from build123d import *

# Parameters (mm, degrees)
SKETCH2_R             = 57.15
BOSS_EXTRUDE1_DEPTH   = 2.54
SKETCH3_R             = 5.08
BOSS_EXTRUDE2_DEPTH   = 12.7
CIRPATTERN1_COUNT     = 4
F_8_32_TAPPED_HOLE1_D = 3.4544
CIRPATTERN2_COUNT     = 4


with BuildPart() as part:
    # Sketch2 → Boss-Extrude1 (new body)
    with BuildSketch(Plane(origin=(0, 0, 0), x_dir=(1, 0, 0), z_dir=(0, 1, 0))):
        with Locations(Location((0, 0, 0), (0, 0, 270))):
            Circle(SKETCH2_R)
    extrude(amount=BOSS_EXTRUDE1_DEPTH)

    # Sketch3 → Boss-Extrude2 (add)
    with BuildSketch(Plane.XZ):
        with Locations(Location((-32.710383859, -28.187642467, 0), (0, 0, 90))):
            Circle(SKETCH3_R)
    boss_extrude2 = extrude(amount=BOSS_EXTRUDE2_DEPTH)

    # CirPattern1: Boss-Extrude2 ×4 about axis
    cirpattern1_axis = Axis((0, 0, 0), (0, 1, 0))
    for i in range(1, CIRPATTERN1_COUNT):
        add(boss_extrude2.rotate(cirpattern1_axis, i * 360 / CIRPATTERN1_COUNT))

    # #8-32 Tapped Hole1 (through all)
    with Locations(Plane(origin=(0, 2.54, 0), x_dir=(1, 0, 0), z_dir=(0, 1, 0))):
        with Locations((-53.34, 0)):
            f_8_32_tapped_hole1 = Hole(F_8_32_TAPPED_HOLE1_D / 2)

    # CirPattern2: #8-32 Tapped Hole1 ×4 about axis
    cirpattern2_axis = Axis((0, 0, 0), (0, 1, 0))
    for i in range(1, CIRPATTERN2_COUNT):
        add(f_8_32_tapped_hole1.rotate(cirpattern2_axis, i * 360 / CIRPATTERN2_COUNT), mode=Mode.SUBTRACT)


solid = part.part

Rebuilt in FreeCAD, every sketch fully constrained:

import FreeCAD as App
import Part
import Sketcher
from FreeCAD import Vector
Q = App.Units.Quantity

doc = App.newDocument("Part")
params = doc.addObject("Spreadsheet::Sheet", "Params")
for row, (alias, value) in enumerate([
    ("sketch1_diameter", "4.5 in"),
    ("pad1_length", "0.1 in"),
    ("sketch2_diameter", "0.4 in"),
    ("pad2_length", "0.5 in"),
    ("sketch3_diameter", "0.136 in"),
    ("hole_diameter", "0.136 in"),
], start=1):
    params.set(f"A{row}", alias)
    params.set(f"B{row}", "=" + value)
    params.setAlias(f"B{row}", alias)

body = doc.addObject("PartDesign::Body", "Body")

sketch1 = body.newObject("Sketcher::SketchObject", "Sketch")
sketch1.AttachmentSupport = (doc.getObject("XZ_Plane"), [""])
sketch1.MapMode = "FlatFace"
sketch1.addGeometry(Part.Circle(Vector(0, 0, 0), Vector(0, 0, 1), 57), False)
sketch1.addConstraint([
    Sketcher.Constraint("Coincident", 0, 3, -1, 1),
    Sketcher.Constraint("Diameter", 0, Q("4.5 in")),
])
sketch1.setExpression("Constraints[1]", "Params.sketch1_diameter")
pad1 = body.newObject("PartDesign::Pad", "Pad")
pad1.Profile = sketch1
pad1.setExpression("Length", "Params.pad1_length")
pad1.Reversed = True

sketch2 = body.newObject("Sketcher::SketchObject", "Sketch001")
sketch2.AttachmentSupport = (doc.getObject("XZ_Plane"), [""])
sketch2.MapMode = "FlatFace"
sketch2.addGeometry(Part.Circle(Vector(-33, -28, 0), Vector(0, 0, 1), 5), False)
sketch2.addConstraint([
    Sketcher.Constraint("Diameter", 0, Q("0.4 in")),
    Sketcher.Constraint("DistanceX", 0, 3, -1, 1, Q("32.710384 mm")),
    Sketcher.Constraint("DistanceY", 0, 3, -1, 1, Q("28.187642 mm")),
])
sketch2.setExpression("Constraints[0]", "Params.sketch2_diameter")
pad2 = body.newObject("PartDesign::Pad", "Pad001")
pad2.Profile = sketch2
pad2.setExpression("Length", "Params.pad2_length")
doc.recompute()

polarpattern = body.newObject("PartDesign::PolarPattern", "PolarPattern")
polarpattern.Originals = [pad2]
polarpattern.Axis = (doc.getObject("Y_Axis"), [""])
polarpattern.Angle = 360
polarpattern.Occurrences = 4
body.Tip = polarpattern

sketch3 = body.newObject("Sketcher::SketchObject", "Sketch002")
sketch3.AttachmentSupport = (doc.getObject("XZ_Plane"), [""])
sketch3.MapMode = "FlatFace"
sketch3.AttachmentOffset = App.Placement(Vector(0, 0, -0.1 * 25.4), App.Rotation())
sketch3.addGeometry(Part.Circle(Vector(-53.3, 0, 0), Vector(0, 0, 1), 1.7), False)
sketch3.addConstraint([
    Sketcher.Constraint("PointOnObject", 0, 3, -1),
    Sketcher.Constraint("Diameter", 0, Q("0.136 in")),
    Sketcher.Constraint("DistanceX", 0, 3, -1, 1, Q("2.1 in")),
])
sketch3.setExpression("Constraints[1]", "Params.sketch3_diameter")
doc.recompute()
hole = body.newObject("PartDesign::Hole", "Hole")
hole.Profile = sketch3
hole.ThreadType = "None"
hole.setExpression("Diameter", "Params.hole_diameter")
hole.DepthType = "ThroughAll"
hole.Reversed = True
doc.recompute()

polarpattern2 = body.newObject("PartDesign::PolarPattern", "PolarPattern001")
polarpattern2.Originals = [hole]
polarpattern2.Axis = (doc.getObject("Y_Axis"), [""])
polarpattern2.Angle = 360
polarpattern2.Occurrences = 4
body.Tip = polarpattern2

doc.recompute()
